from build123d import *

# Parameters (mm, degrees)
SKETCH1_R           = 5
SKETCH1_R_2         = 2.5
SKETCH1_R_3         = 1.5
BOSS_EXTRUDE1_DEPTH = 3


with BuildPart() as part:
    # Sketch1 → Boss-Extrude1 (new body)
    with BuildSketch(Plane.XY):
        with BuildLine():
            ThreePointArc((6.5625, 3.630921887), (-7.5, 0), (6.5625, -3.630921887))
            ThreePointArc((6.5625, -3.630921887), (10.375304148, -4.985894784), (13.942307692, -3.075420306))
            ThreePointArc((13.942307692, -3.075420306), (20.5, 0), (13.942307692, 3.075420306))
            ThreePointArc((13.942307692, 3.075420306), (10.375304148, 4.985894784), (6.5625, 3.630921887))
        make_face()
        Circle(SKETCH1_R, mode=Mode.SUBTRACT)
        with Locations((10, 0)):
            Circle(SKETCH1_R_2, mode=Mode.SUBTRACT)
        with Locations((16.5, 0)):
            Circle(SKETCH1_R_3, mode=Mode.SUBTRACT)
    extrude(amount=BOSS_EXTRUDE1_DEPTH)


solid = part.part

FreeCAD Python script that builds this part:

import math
import FreeCAD as App
import Part
import Sketcher

doc = App.newDocument("Part")
body = doc.addObject("PartDesign::Body", "Body")

sketch1 = doc.addObject("Sketcher::SketchObject", "Sketch")
body.addObject(sketch1)
sketch1.AttachmentSupport = (doc.XY_Plane, [""])
sketch1.MapMode = "FlatFace"
sketch1.addGeometry(Part.ArcOfCircle(Part.Circle(App.Vector(0, 0, 0), App.Vector(0, 0, 1), 7.5), math.radians(29), math.radians(331)), False)
sketch1.addGeometry(Part.ArcOfCircle(Part.Circle(App.Vector(10, 0, 0), App.Vector(0, 0, 1), 5), math.radians(-133), math.radians(-38)), False)
sketch1.addGeometry(Part.ArcOfCircle(Part.Circle(App.Vector(16.5, 0, 0), App.Vector(0, 0, 1), 4), math.radians(-130), math.radians(130)), False)
sketch1.addGeometry(Part.ArcOfCircle(Part.Circle(App.Vector(10, 0, 0), App.Vector(0, 0, 1), 5), math.radians(38), math.radians(133)), False)
sketch1.addGeometry(Part.Circle(App.Vector(0, 0, 0), App.Vector(0, 0, 1), 5), False)
sketch1.addGeometry(Part.Circle(App.Vector(10, 0, 0), App.Vector(0, 0, 1), 2.5), False)
sketch1.addGeometry(Part.Circle(App.Vector(16.5, 0, 0), App.Vector(0, 0, 1), 1.5), False)
sketch1.addConstraint(Sketcher.Constraint("Coincident", 0, 2, 1, 1))
sketch1.addConstraint(Sketcher.Constraint("Coincident", 1, 2, 2, 1))
sketch1.addConstraint(Sketcher.Constraint("Coincident", 2, 2, 3, 1))
sketch1.addConstraint(Sketcher.Constraint("Coincident", 3, 2, 0, 1))
sketch1.addConstraint(Sketcher.Constraint("Coincident", 0, 3, -1, 1))
sketch1.addConstraint(Sketcher.Constraint("Coincident", 4, 3, -1, 1))
sketch1.addConstraint(Sketcher.Constraint("Coincident", 3, 3, 1, 3))
sketch1.addConstraint(Sketcher.Constraint("Coincident", 5, 3, 1, 3))
sketch1.addConstraint(Sketcher.Constraint("Coincident", 6, 3, 2, 3))
sketch1.addConstraint(Sketcher.Constraint("Equal", 1, 3))
sketch1.addConstraint(Sketcher.Constraint("Equal", 3, 4))
sketch1.addConstraint(Sketcher.Constraint("Symmetric", 1, 2, 2, 2, -1))
sketch1.addConstraint(Sketcher.Constraint("Diameter", 4, 10.0))
sketch1.addConstraint(Sketcher.Constraint("Diameter", 5, 5.0))
sketch1.addConstraint(Sketcher.Constraint("Diameter", 6, 3.0))
sketch1.addConstraint(Sketcher.Constraint("Radius", 2, 4.0))
sketch1.addConstraint(Sketcher.Constraint("Radius", 0, 7.5))
sketch1.addConstraint(Sketcher.Constraint("DistanceX", -1, 1, 1, 3, 10.0))
sketch1.addConstraint(Sketcher.Constraint("DistanceX", -1, 1, 2, 3, 16.5))
pad1 = doc.addObject("PartDesign::Pad", "Pad")
body.addObject(pad1)
pad1.Profile = sketch1
pad1.Length = 3

doc.recompute()
